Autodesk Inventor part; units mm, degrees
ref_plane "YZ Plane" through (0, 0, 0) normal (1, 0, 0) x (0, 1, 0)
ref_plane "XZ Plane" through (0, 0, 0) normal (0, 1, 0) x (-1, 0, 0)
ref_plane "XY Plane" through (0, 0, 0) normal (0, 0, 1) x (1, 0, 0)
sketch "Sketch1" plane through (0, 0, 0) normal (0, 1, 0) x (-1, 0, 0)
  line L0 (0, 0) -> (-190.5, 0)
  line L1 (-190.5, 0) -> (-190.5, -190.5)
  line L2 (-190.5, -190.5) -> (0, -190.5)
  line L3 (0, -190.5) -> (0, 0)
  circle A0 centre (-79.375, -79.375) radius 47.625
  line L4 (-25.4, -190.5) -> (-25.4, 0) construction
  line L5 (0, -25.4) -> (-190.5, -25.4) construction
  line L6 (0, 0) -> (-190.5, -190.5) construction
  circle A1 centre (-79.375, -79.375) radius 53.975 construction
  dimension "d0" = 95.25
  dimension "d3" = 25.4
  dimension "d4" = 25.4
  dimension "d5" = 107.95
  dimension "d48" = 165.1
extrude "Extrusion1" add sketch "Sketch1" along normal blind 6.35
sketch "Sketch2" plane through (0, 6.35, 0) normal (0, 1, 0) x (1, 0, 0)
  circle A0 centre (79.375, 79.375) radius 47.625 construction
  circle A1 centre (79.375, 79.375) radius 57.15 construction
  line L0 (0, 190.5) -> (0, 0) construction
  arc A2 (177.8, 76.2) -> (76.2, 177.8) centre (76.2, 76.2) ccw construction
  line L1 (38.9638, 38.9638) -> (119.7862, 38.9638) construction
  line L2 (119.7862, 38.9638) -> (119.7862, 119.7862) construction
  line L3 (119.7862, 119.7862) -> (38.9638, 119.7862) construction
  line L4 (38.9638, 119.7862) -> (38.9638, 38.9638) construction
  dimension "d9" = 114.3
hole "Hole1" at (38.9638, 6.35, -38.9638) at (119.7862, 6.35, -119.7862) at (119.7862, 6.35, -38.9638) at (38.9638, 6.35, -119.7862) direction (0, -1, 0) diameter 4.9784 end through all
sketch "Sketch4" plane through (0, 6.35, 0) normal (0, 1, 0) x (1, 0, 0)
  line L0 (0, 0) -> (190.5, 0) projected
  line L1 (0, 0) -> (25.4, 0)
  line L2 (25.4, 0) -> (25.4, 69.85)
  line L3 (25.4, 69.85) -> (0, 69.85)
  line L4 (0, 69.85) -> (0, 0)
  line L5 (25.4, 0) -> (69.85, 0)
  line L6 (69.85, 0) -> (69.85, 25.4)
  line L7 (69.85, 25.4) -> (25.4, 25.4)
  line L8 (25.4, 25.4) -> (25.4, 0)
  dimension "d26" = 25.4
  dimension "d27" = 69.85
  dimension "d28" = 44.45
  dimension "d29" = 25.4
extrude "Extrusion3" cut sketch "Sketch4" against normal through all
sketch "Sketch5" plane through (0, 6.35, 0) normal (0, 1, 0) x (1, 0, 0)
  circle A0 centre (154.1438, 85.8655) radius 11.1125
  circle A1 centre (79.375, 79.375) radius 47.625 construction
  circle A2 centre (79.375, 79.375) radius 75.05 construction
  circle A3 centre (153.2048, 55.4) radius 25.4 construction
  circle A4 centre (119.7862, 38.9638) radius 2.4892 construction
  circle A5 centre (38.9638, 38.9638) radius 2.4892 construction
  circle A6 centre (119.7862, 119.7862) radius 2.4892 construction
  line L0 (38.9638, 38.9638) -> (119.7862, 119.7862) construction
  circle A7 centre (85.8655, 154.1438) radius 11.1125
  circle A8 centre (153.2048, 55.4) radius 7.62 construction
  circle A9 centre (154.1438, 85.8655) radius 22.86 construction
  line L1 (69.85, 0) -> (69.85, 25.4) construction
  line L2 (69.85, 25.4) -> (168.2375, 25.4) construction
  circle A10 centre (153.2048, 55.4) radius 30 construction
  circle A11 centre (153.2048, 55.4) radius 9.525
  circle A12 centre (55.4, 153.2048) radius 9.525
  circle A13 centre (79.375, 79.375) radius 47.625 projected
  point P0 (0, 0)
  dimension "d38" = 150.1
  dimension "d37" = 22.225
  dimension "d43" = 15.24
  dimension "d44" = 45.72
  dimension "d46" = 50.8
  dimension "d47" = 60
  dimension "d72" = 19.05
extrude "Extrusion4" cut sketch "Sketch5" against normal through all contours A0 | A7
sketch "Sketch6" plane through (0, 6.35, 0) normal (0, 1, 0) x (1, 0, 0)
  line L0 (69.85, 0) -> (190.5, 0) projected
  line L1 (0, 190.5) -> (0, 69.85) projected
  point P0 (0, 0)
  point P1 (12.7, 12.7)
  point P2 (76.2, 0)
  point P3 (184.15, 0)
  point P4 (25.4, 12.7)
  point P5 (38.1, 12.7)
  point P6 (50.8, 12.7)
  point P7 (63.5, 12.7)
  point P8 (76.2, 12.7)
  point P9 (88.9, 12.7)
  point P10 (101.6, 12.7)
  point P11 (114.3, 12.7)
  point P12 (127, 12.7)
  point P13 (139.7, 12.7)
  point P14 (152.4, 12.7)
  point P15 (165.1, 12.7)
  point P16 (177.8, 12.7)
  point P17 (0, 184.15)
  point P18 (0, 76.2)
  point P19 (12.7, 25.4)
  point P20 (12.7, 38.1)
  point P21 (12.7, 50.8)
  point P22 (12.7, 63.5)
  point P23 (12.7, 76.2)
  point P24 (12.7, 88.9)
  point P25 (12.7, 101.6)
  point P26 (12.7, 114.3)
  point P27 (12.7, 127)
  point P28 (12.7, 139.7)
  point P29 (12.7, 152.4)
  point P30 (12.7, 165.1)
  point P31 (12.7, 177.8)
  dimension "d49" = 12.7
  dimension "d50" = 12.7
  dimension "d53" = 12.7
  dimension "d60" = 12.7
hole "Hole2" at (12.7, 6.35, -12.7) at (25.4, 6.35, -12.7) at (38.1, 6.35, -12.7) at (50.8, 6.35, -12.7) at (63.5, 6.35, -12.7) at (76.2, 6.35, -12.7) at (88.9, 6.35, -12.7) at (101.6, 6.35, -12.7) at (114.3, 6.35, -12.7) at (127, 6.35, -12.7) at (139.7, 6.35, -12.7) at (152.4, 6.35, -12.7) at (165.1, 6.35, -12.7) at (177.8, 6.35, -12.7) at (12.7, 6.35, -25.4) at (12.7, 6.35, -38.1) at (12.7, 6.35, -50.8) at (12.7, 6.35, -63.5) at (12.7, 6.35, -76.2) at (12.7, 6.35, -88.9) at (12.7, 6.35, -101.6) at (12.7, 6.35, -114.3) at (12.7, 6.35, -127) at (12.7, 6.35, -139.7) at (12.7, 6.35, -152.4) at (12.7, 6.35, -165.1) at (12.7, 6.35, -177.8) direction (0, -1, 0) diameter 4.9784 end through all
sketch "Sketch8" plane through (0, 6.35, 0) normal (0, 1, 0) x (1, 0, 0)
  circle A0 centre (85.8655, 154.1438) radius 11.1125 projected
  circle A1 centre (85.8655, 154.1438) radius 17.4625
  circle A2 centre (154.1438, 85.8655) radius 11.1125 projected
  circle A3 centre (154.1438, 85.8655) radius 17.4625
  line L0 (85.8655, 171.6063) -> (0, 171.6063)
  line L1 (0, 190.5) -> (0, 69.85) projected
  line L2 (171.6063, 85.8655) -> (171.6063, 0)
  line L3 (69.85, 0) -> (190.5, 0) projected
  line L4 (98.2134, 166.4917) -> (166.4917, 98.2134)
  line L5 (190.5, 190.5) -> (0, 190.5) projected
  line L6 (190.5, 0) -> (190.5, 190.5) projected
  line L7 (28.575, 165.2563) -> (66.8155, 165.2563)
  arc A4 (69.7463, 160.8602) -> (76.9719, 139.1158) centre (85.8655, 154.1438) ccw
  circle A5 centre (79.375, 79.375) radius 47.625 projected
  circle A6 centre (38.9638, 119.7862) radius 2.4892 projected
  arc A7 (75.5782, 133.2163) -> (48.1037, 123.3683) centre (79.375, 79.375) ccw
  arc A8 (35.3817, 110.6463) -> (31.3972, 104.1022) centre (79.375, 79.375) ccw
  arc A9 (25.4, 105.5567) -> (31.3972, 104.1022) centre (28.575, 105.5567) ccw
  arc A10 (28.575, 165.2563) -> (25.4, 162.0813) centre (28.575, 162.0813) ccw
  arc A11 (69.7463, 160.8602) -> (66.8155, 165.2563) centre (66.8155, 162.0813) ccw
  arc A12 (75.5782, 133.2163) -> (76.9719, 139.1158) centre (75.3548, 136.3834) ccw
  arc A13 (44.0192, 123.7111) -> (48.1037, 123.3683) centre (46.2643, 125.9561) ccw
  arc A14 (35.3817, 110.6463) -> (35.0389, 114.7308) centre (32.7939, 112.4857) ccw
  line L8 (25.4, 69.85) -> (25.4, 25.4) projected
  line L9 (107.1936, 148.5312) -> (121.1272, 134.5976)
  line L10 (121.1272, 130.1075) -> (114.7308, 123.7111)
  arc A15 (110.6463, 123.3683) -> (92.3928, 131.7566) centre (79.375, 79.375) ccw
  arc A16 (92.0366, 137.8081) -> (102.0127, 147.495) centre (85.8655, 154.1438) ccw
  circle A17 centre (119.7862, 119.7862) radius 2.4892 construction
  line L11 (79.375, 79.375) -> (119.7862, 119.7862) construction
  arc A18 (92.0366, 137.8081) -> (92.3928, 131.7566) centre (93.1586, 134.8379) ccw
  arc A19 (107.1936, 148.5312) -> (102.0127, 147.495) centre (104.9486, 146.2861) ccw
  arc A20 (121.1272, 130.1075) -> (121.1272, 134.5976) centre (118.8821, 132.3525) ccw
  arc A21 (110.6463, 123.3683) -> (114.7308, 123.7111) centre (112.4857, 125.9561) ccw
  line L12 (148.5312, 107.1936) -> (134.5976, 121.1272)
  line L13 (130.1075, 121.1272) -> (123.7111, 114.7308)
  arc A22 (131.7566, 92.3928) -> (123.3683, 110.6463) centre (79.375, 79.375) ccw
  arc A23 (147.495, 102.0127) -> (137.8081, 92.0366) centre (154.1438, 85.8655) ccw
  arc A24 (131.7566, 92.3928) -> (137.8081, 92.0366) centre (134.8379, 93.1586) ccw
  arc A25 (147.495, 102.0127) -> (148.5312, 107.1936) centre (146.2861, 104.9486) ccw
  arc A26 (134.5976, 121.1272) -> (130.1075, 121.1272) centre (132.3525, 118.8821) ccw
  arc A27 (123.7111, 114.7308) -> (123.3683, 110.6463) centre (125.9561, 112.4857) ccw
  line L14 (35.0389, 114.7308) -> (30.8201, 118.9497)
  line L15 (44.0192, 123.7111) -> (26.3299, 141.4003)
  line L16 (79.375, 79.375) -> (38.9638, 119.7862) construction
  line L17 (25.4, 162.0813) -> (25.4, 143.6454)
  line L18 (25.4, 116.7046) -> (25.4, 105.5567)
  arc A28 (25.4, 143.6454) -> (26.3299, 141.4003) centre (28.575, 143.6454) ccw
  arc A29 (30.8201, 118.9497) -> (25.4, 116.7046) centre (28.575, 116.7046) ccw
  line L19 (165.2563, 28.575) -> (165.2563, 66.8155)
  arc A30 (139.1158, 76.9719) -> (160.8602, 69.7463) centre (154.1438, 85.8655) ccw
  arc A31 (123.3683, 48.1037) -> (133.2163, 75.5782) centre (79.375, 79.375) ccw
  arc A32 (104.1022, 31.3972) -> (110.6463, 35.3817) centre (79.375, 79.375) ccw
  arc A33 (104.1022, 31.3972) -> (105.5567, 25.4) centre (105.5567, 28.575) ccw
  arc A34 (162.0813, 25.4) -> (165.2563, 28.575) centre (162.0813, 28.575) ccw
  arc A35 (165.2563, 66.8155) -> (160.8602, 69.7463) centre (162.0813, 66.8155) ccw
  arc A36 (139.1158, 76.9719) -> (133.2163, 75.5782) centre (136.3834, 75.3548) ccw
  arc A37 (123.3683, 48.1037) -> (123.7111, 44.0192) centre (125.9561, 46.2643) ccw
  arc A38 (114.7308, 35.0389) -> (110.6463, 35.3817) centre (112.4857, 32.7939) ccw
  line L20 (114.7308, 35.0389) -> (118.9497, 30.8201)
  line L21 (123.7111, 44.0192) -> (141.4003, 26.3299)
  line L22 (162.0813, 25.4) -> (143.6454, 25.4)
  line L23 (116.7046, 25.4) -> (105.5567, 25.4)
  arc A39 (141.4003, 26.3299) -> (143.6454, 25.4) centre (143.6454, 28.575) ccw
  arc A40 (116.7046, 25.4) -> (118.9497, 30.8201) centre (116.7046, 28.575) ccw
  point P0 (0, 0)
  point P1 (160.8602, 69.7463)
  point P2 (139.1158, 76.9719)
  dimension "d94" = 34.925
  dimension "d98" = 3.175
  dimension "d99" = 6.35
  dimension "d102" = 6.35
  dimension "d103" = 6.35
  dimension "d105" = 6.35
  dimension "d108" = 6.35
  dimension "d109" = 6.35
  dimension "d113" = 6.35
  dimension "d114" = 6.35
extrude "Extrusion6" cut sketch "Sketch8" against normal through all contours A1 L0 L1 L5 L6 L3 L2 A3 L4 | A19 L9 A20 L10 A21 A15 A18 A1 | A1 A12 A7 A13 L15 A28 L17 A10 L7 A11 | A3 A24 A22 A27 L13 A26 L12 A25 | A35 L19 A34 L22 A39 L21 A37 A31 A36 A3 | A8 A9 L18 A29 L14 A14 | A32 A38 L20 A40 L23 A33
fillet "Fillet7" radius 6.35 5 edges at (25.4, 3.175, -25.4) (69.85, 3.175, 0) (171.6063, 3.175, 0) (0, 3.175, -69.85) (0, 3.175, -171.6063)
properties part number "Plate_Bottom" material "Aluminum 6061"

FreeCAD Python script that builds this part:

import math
import FreeCAD as App
import Part
import Sketcher
from FreeCAD import Vector
Q = App.Units.Quantity


def edges_at(feature, points):
    """Names of the edges that pass closest to the given points."""
    edges = feature.Shape.Edges
    near = lambda p: min(range(len(edges)), key=lambda i: edges[i].distToShape(Part.Vertex(*p))[0])
    return sorted({f"Edge{near(p) + 1}" for p in points})

doc = App.newDocument("Part")
params = doc.addObject("Spreadsheet::Sheet", "Params")
for row, (alias, value) in enumerate([
    ("sketch1_diameter", "3.75 in"),
    ("sketch1_width", "7.5 in"),
    ("pad1_length", "0.25 in"),
    ("sketch2_diameter", "0.196 in"),
    ("hole_diameter", "0.196 in"),
    ("sketch3_width", "1 in"),
    ("sketch3_width2", "2.75 in"),
    ("sketch4_diameter", "0.875 in"),
    ("sketch5_diameter", "0.196 in"),
    ("hole2_diameter", "0.196 in"),
    ("sketch6_radius", "0.6875 in"),
    ("sketch6_radius2", "0.125 in"),
    ("sketch6_width", "7.5 in"),
    ("sketch6_radius3", "2.125 in"),
    ("fillet_radius", "0.25 in"),
], start=1):
    params.set(f"A{row}", alias)
    params.set(f"B{row}", "=" + value)
    params.setAlias(f"B{row}", alias)

body = doc.addObject("PartDesign::Body", "Body")

# Sketch on XZ plane
sketch1 = body.newObject("Sketcher::SketchObject", "Sketch")
sketch1.AttachmentSupport = (doc.getObject("XZ_Plane"), [""])
sketch1.MapMode = "FlatFace"
sketch1.addGeometry(Part.LineSegment(Vector(0, -190, 0), Vector(0, 0, 0)), False)
sketch1.addGeometry(Part.LineSegment(Vector(0, 0, 0), Vector(190, 0, 0)), False)
sketch1.addGeometry(Part.LineSegment(Vector(190, 0, 0), Vector(190, -190, 0)), False)
sketch1.addGeometry(Part.LineSegment(Vector(190, -190, 0), Vector(0, -190, 0)), False)
sketch1.addGeometry(Part.Circle(Vector(79, -79, 0), Vector(0, 0, 1), 48), False)
sketch1.addConstraint(Sketcher.Constraint("Coincident", 0, 2, 1, 1))
sketch1.addConstraint(Sketcher.Constraint("Coincident", 1, 2, 2, 1))
sketch1.addConstraint(Sketcher.Constraint("Coincident", 2, 2, 3, 1))
sketch1.addConstraint(Sketcher.Constraint("Coincident", 3, 2, 0, 1))
sketch1.addConstraint(Sketcher.Constraint("Vertical", 0))
sketch1.addConstraint(Sketcher.Constraint("Horizontal", 1))
sketch1.addConstraint(Sketcher.Constraint("Vertical", 2))
sketch1.addConstraint(Sketcher.Constraint("Horizontal", 3))
sketch1.addConstraint(Sketcher.Constraint("Coincident", 0, 2, -1, 1))
sketch1.addConstraint(Sketcher.Constraint("Equal", 3, 0))
sketch1.addConstraint(Sketcher.Constraint("Diameter", 4, Q("3.75 in")))
sketch1.addConstraint(Sketcher.Constraint("DistanceX", 1, 1, 1, 2, Q("7.5 in")))
sketch1.addConstraint(Sketcher.Constraint("DistanceX", -1, 1, 4, 3, Q("3.125 in")))
sketch1.addConstraint(Sketcher.Constraint("DistanceY", 4, 3, -1, 1, Q("3.125 in")))
sketch1.setExpression("Constraints[10]", "Params.sketch1_diameter")
sketch1.setExpression("Constraints[11]", "Params.sketch1_width")
pad1 = body.newObject("PartDesign::Pad", "Pad")
pad1.Profile = sketch1
pad1.setExpression("Length", "Params.pad1_length")
pad1.Reversed = True

# Sketch on XZ plane
sketch2 = body.newObject("Sketcher::SketchObject", "Sketch001")
sketch2.AttachmentSupport = (doc.getObject("XZ_Plane"), [""])
sketch2.MapMode = "FlatFace"
sketch2.AttachmentOffset = App.Placement(Vector(0, 0, -0.25 * 25.4), App.Rotation())
sketch2.addGeometry(Part.Circle(Vector(39, -39, 0), Vector(0, 0, 1), 2.5), False)
sketch2.addGeometry(Part.Circle(Vector(119.8, -119.8, 0), Vector(0, 0, 1), 2.5), False)
sketch2.addGeometry(Part.Circle(Vector(119.8, -39, 0), Vector(0, 0, 1), 2.5), False)
sketch2.addGeometry(Part.Circle(Vector(39, -119.8, 0), Vector(0, 0, 1), 2.5), False)
sketch2.addConstraint(Sketcher.Constraint("Equal", 0, 1))
sketch2.addConstraint(Sketcher.Constraint("Equal", 1, 2))
sketch2.addConstraint(Sketcher.Constraint("Equal", 2, 3))
sketch2.addConstraint(Sketcher.Constraint("Horizontal", 0, 3, 2, 3))
sketch2.addConstraint(Sketcher.Constraint("Horizontal", 1, 3, 3, 3))
sketch2.addConstraint(Sketcher.Constraint("Vertical", 1, 3, 2, 3))
sketch2.addConstraint(Sketcher.Constraint("Vertical", 0, 3, 3, 3))
sketch2.addConstraint(Sketcher.Constraint("Diameter", 0, Q("0.196 in")))
sketch2.addConstraint(Sketcher.Constraint("DistanceX", -1, 1, 0, 3, Q("1.534 in")))
sketch2.addConstraint(Sketcher.Constraint("DistanceY", 0, 3, -1, 1, Q("1.534 in")))
sketch2.addConstraint(Sketcher.Constraint("DistanceX", -1, 1, 1, 3, Q("4.716 in")))
sketch2.addConstraint(Sketcher.Constraint("DistanceY", 1, 3, -1, 1, Q("4.716 in")))
sketch2.setExpression("Constraints[7]", "Params.sketch2_diameter")
doc.recompute()
hole = body.newObject("PartDesign::Hole", "Hole")
hole.Profile = sketch2
hole.ThreadType = "None"
hole.setExpression("Diameter", "Params.hole_diameter")
hole.DepthType = "ThroughAll"
hole.Reversed = True

# Sketch on XZ plane
sketch3 = body.newObject("Sketcher::SketchObject", "Sketch002")
sketch3.AttachmentSupport = (doc.getObject("XZ_Plane"), [""])
sketch3.MapMode = "FlatFace"
sketch3.AttachmentOffset = App.Placement(Vector(0, 0, -0.25 * 25.4), App.Rotation())
sketch3.addGeometry(Part.LineSegment(Vector(0, -70, 0), Vector(0, 0, 0)), False)
sketch3.addGeometry(Part.LineSegment(Vector(0, 0, 0), Vector(70, 0, 0)), False)
sketch3.addGeometry(Part.LineSegment(Vector(70, 0, 0), Vector(70, -25, 0)), False)
sketch3.addGeometry(Part.LineSegment(Vector(70, -25, 0), Vector(25, -25, 0)), False)
sketch3.addGeometry(Part.LineSegment(Vector(25, -25, 0), Vector(25, -70, 0)), False)
sketch3.addGeometry(Part.LineSegment(Vector(25, -70, 0), Vector(0, -70, 0)), False)
sketch3.addConstraint(Sketcher.Constraint("Coincident", 0, 2, 1, 1))
sketch3.addConstraint(Sketcher.Constraint("Coincident", 1, 2, 2, 1))
sketch3.addConstraint(Sketcher.Constraint("Coincident", 2, 2, 3, 1))
sketch3.addConstraint(Sketcher.Constraint("Coincident", 3, 2, 4, 1))
sketch3.addConstraint(Sketcher.Constraint("Coincident", 4, 2, 5, 1))
sketch3.addConstraint(Sketcher.Constraint("Coincident", 5, 2, 0, 1))
sketch3.addConstraint(Sketcher.Constraint("Vertical", 0))
sketch3.addConstraint(Sketcher.Constraint("Horizontal", 1))
sketch3.addConstraint(Sketcher.Constraint("Vertical", 2))
sketch3.addConstraint(Sketcher.Constraint("Horizontal", 3))
sketch3.addConstraint(Sketcher.Constraint("Vertical", 4))
sketch3.addConstraint(Sketcher.Constraint("Horizontal", 5))
sketch3.addConstraint(Sketcher.Constraint("Coincident", 0, 2, -1, 1))
sketch3.addConstraint(Sketcher.Constraint("Equal", 1, 0))
sketch3.addConstraint(Sketcher.Constraint("Equal", 5, 2))
sketch3.addConstraint(Sketcher.Constraint("DistanceX", 5, 2, 5, 1, Q("1 in")))
sketch3.addConstraint(Sketcher.Constraint("DistanceX", 1, 1, 1, 2, Q("2.75 in")))
sketch3.setExpression("Constraints[15]", "Params.sketch3_width")
sketch3.setExpression("Constraints[16]", "Params.sketch3_width2")
pocket1 = body.newObject("PartDesign::Pocket", "Pocket")
pocket1.Profile = sketch3
pocket1.Type = "ThroughAll"
pocket1.Reversed = True

# Sketch on XZ plane
sketch4 = body.newObject("Sketcher::SketchObject", "Sketch003")
sketch4.AttachmentSupport = (doc.getObject("XZ_Plane"), [""])
sketch4.MapMode = "FlatFace"
sketch4.AttachmentOffset = App.Placement(Vector(0, 0, -0.25 * 25.4), App.Rotation())
sketch4.addGeometry(Part.Circle(Vector(154, -86, 0), Vector(0, 0, 1), 11), False)
sketch4.addGeometry(Part.Circle(Vector(86, -154, 0), Vector(0, 0, 1), 11), False)
sketch4.addConstraint(Sketcher.Constraint("Equal", 0, 1))
sketch4.addConstraint(Sketcher.Constraint("Diameter", 0, Q("0.875 in")))
sketch4.addConstraint(Sketcher.Constraint("DistanceX", -1, 1, 0, 3, 154.1438))
sketch4.addConstraint(Sketcher.Constraint("DistanceY", 0, 3, -1, 1, 85.8655))
sketch4.addConstraint(Sketcher.Constraint("DistanceX", -1, 1, 1, 3, 85.8655))
sketch4.addConstraint(Sketcher.Constraint("DistanceY", 1, 3, -1, 1, 154.1438))
sketch4.setExpression("Constraints[1]", "Params.sketch4_diameter")
pocket2 = body.newObject("PartDesign::Pocket", "Pocket001")
pocket2.Profile = sketch4
pocket2.Type = "ThroughAll"
pocket2.Reversed = True

# Sketch on XZ plane
sketch5 = body.newObject("Sketcher::SketchObject", "Sketch004")
sketch5.AttachmentSupport = (doc.getObject("XZ_Plane"), [""])
sketch5.MapMode = "FlatFace"
sketch5.AttachmentOffset = App.Placement(Vector(0, 0, -0.25 * 25.4), App.Rotation())
sketch5.addGeometry(Part.Circle(Vector(12.7, -12.7, 0), Vector(0, 0, 1), 2.5), False)
sketch5.addGeometry(Part.Circle(Vector(25.4, -12.7, 0), Vector(0, 0, 1), 2.5), False)
sketch5.addGeometry(Part.Circle(Vector(38.1, -12.7, 0), Vector(0, 0, 1), 2.5), False)
sketch5.addGeometry(Part.Circle(Vector(50.8, -12.7, 0), Vector(0, 0, 1), 2.5), False)
sketch5.addGeometry(Part.Circle(Vector(63.5, -12.7, 0), Vector(0, 0, 1), 2.5), False)
sketch5.addGeometry(Part.Circle(Vector(76.2, -12.7, 0), Vector(0, 0, 1), 2.5), False)
sketch5.addGeometry(Part.Circle(Vector(88.9, -12.7, 0), Vector(0, 0, 1), 2.5), False)
sketch5.addGeometry(Part.Circle(Vector(101.6, -12.7, 0), Vector(0, 0, 1), 2.5), False)
sketch5.addGeometry(Part.Circle(Vector(114.3, -12.7, 0), Vector(0, 0, 1), 2.5), False)
sketch5.addGeometry(Part.Circle(Vector(127, -12.7, 0), Vector(0, 0, 1), 2.5), False)
sketch5.addGeometry(Part.Circle(Vector(139.7, -12.7, 0), Vector(0, 0, 1), 2.5), False)
sketch5.addGeometry(Part.Circle(Vector(152.4, -12.7, 0), Vector(0, 0, 1), 2.5), False)
sketch5.addGeometry(Part.Circle(Vector(165.1, -12.7, 0), Vector(0, 0, 1), 2.5), False)
sketch5.addGeometry(Part.Circle(Vector(177.8, -12.7, 0), Vector(0, 0, 1), 2.5), False)
sketch5.addGeometry(Part.Circle(Vector(12.7, -25.4, 0), Vector(0, 0, 1), 2.5), False)
sketch5.addGeometry(Part.Circle(Vector(12.7, -38.1, 0), Vector(0, 0, 1), 2.5), False)
sketch5.addGeometry(Part.Circle(Vector(12.7, -50.8, 0), Vector(0, 0, 1), 2.5), False)
sketch5.addGeometry(Part.Circle(Vector(12.7, -63.5, 0), Vector(0, 0, 1), 2.5), False)
sketch5.addGeometry(Part.Circle(Vector(12.7, -76.2, 0), Vector(0, 0, 1), 2.5), False)
sketch5.addGeometry(Part.Circle(Vector(12.7, -88.9, 0), Vector(0, 0, 1), 2.5), False)
sketch5.addGeometry(Part.Circle(Vector(12.7, -101.6, 0), Vector(0, 0, 1), 2.5), False)
sketch5.addGeometry(Part.Circle(Vector(12.7, -114.3, 0), Vector(0, 0, 1), 2.5), False)
sketch5.addGeometry(Part.Circle(Vector(12.7, -127, 0), Vector(0, 0, 1), 2.5), False)
sketch5.addGeometry(Part.Circle(Vector(12.7, -139.7, 0), Vector(0, 0, 1), 2.5), False)
sketch5.addGeometry(Part.Circle(Vector(12.7, -152.4, 0), Vector(0, 0, 1), 2.5), False)
sketch5.addGeometry(Part.Circle(Vector(12.7, -165.1, 0), Vector(0, 0, 1), 2.5), False)
sketch5.addGeometry(Part.Circle(Vector(12.7, -177.8, 0), Vector(0, 0, 1), 2.5), False)
sketch5.addConstraint(Sketcher.Constraint("Equal", 0, 1))
sketch5.addConstraint(Sketcher.Constraint("Equal", 1, 2))
sketch5.addConstraint(Sketcher.Constraint("Equal", 2, 3))
sketch5.addConstraint(Sketcher.Constraint("Equal", 3, 4))
sketch5.addConstraint(Sketcher.Constraint("Equal", 4, 5))
sketch5.addConstraint(Sketcher.Constraint("Equal", 5, 6))
sketch5.addConstraint(Sketcher.Constraint("Equal", 6, 7))
sketch5.addConstraint(Sketcher.Constraint("Equal", 7, 8))
sketch5.addConstraint(Sketcher.Constraint("Equal", 8, 9))
sketch5.addConstraint(Sketcher.Constraint("Equal", 9, 10))
sketch5.addConstraint(Sketcher.Constraint("Equal", 10, 11))
sketch5.addConstraint(Sketcher.Constraint("Equal", 11, 12))
sketch5.addConstraint(Sketcher.Constraint("Equal", 12, 13))
sketch5.addConstraint(Sketcher.Constraint("Equal", 13, 14))
sketch5.addConstraint(Sketcher.Constraint("Equal", 14, 15))
sketch5.addConstraint(Sketcher.Constraint("Equal", 15, 16))
sketch5.addConstraint(Sketcher.Constraint("Equal", 16, 17))
sketch5.addConstraint(Sketcher.Constraint("Equal", 17, 18))
sketch5.addConstraint(Sketcher.Constraint("Equal", 18, 19))
sketch5.addConstraint(Sketcher.Constraint("Equal", 19, 20))
sketch5.addConstraint(Sketcher.Constraint("Equal", 20, 21))
sketch5.addConstraint(Sketcher.Constraint("Equal", 21, 22))
sketch5.addConstraint(Sketcher.Constraint("Equal", 22, 23))
sketch5.addConstraint(Sketcher.Constraint("Equal", 23, 24))
sketch5.addConstraint(Sketcher.Constraint("Equal", 24, 25))
sketch5.addConstraint(Sketcher.Constraint("Equal", 25, 26))
sketch5.addConstraint(Sketcher.Constraint("Horizontal", 0, 3, 1, 3))
sketch5.addConstraint(Sketcher.Constraint("Horizontal", 1, 3, 2, 3))
sketch5.addConstraint(Sketcher.Constraint("Horizontal", 2, 3, 3, 3))
sketch5.addConstraint(Sketcher.Constraint("Horizontal", 3, 3, 4, 3))
sketch5.addConstraint(Sketcher.Constraint("Horizontal", 4, 3, 5, 3))
sketch5.addConstraint(Sketcher.Constraint("Horizontal", 5, 3, 6, 3))
sketch5.addConstraint(Sketcher.Constraint("Horizontal", 6, 3, 7, 3))
sketch5.addConstraint(Sketcher.Constraint("Horizontal", 7, 3, 8, 3))
sketch5.addConstraint(Sketcher.Constraint("Horizontal", 8, 3, 9, 3))
sketch5.addConstraint(Sketcher.Constraint("Horizontal", 9, 3, 10, 3))
sketch5.addConstraint(Sketcher.Constraint("Horizontal", 10, 3, 11, 3))
sketch5.addConstraint(Sketcher.Constraint("Horizontal", 11, 3, 12, 3))
sketch5.addConstraint(Sketcher.Constraint("Horizontal", 12, 3, 13, 3))
sketch5.addConstraint(Sketcher.Constraint("Vertical", 0, 3, 14, 3))
sketch5.addConstraint(Sketcher.Constraint("Vertical", 14, 3, 15, 3))
sketch5.addConstraint(Sketcher.Constraint("Vertical", 15, 3, 16, 3))
sketch5.addConstraint(Sketcher.Constraint("Vertical", 16, 3, 17, 3))
sketch5.addConstraint(Sketcher.Constraint("Vertical", 17, 3, 18, 3))
sketch5.addConstraint(Sketcher.Constraint("Vertical", 18, 3, 19, 3))
sketch5.addConstraint(Sketcher.Constraint("Vertical", 19, 3, 20, 3))
sketch5.addConstraint(Sketcher.Constraint("Vertical", 20, 3, 21, 3))
sketch5.addConstraint(Sketcher.Constraint("Vertical", 21, 3, 22, 3))
sketch5.addConstraint(Sketcher.Constraint("Vertical", 22, 3, 23, 3))
sketch5.addConstraint(Sketcher.Constraint("Vertical", 23, 3, 24, 3))
sketch5.addConstraint(Sketcher.Constraint("Vertical", 24, 3, 25, 3))
sketch5.addConstraint(Sketcher.Constraint("Vertical", 25, 3, 26, 3))
sketch5.addConstraint(Sketcher.Constraint("Diameter", 0, Q("0.196 in")))
sketch5.addConstraint(Sketcher.Constraint("DistanceX", -1, 1, 1, 3, Q("1 in")))
sketch5.addConstraint(Sketcher.Constraint("DistanceX", -1, 1, 3, 3, Q("2 in")))
sketch5.addConstraint(Sketcher.Constraint("DistanceX", -1, 1, 5, 3, Q("3 in")))
sketch5.addConstraint(Sketcher.Constraint("DistanceX", -1, 1, 7, 3, Q("4 in")))
sketch5.addConstraint(Sketcher.Constraint("DistanceX", -1, 1, 9, 3, Q("5 in")))
sketch5.addConstraint(Sketcher.Constraint("DistanceX", -1, 1, 11, 3, Q("6 in")))
sketch5.addConstraint(Sketcher.Constraint("DistanceX", -1, 1, 13, 3, Q("7 in")))
sketch5.addConstraint(Sketcher.Constraint("DistanceY", 14, 3, -1, 1, Q("1 in")))
sketch5.addConstraint(Sketcher.Constraint("DistanceY", 16, 3, -1, 1, Q("2 in")))
sketch5.addConstraint(Sketcher.Constraint("DistanceY", 18, 3, -1, 1, Q("3 in")))
sketch5.addConstraint(Sketcher.Constraint("DistanceY", 20, 3, -1, 1, Q("4 in")))
sketch5.addConstraint(Sketcher.Constraint("DistanceY", 22, 3, -1, 1, Q("5 in")))
sketch5.addConstraint(Sketcher.Constraint("DistanceY", 24, 3, -1, 1, Q("6 in")))
sketch5.addConstraint(Sketcher.Constraint("DistanceY", 26, 3, -1, 1, Q("7 in")))
sketch5.addConstraint(Sketcher.Constraint("DistanceX", 0, 3, 2, 3, Q("1 in")))
sketch5.addConstraint(Sketcher.Constraint("DistanceX", 2, 3, 4, 3, Q("1 in")))
sketch5.addConstraint(Sketcher.Constraint("DistanceX", 4, 3, 6, 3, Q("1 in")))
sketch5.addConstraint(Sketcher.Constraint("DistanceX", 6, 3, 8, 3, Q("1 in")))
sketch5.addConstraint(Sketcher.Constraint("DistanceX", 8, 3, 10, 3, Q("1 in")))
sketch5.addConstraint(Sketcher.Constraint("DistanceX", 10, 3, 12, 3, Q("1 in")))
sketch5.addConstraint(Sketcher.Constraint("DistanceY", 15, 3, 0, 3, Q("1 in")))
sketch5.addConstraint(Sketcher.Constraint("DistanceY", 17, 3, 15, 3, Q("1 in")))
sketch5.addConstraint(Sketcher.Constraint("DistanceY", 19, 3, 17, 3, Q("1 in")))
sketch5.addConstraint(Sketcher.Constraint("DistanceY", 21, 3, 19, 3, Q("1 in")))
sketch5.addConstraint(Sketcher.Constraint("DistanceY", 23, 3, 21, 3, Q("1 in")))
sketch5.addConstraint(Sketcher.Constraint("DistanceY", 25, 3, 23, 3, Q("1 in")))
sketch5.addConstraint(Sketcher.Constraint("DistanceX", -1, 1, 0, 3, Q("0.5 in")))
sketch5.addConstraint(Sketcher.Constraint("DistanceY", 0, 3, -1, 1, Q("0.5 in")))
sketch5.setExpression("Constraints[52]", "Params.sketch5_diameter")
doc.recompute()
hole2 = body.newObject("PartDesign::Hole", "Hole001")
hole2.Profile = sketch5
hole2.ThreadType = "None"
hole2.setExpression("Diameter", "Params.hole2_diameter")
hole2.DepthType = "ThroughAll"
hole2.Reversed = True

# Sketch on XZ plane
sketch6 = body.newObject("Sketcher::SketchObject", "Sketch005")
sketch6.AttachmentSupport = (doc.getObject("XZ_Plane"), [""])
sketch6.MapMode = "FlatFace"
sketch6.AttachmentOffset = App.Placement(Vector(0, 0, -0.25 * 25.4), App.Rotation())
sketch6.addGeometry(Part.ArcOfCircle(Part.Circle(Vector(85.9, -154.1, 0), Vector(0, 0, 1), 17.5), math.radians(-90), math.radians(-45)), False)
sketch6.addGeometry(Part.LineSegment(Vector(98.2, -166.5, 0), Vector(166.5, -98.2, 0)), False)
sketch6.addGeometry(Part.ArcOfCircle(Part.Circle(Vector(154.1, -85.9, 0), Vector(0, 0, 1), 17.5), math.radians(-45), math.radians(0)), False)
sketch6.addGeometry(Part.LineSegment(Vector(171.6, -85.9, 0), Vector(171.6, 0, 0)), False)
sketch6.addGeometry(Part.LineSegment(Vector(171.6, 0, 0), Vector(190.5, 0, 0)), False)
sketch6.addGeometry(Part.LineSegment(Vector(190.5, 0, 0), Vector(190.5, -190.5, 0)), False)
sketch6.addGeometry(Part.LineSegment(Vector(190.5, -190.5, 0), Vector(0, -190.5, 0)), False)
sketch6.addGeometry(Part.LineSegment(Vector(0, -190.5, 0), Vector(0, -171.6, 0)), False)
sketch6.addGeometry(Part.LineSegment(Vector(0, -171.6, 0), Vector(85.9, -171.6, 0)), False)
sketch6.addGeometry(Part.ArcOfCircle(Part.Circle(Vector(104.9, -146.3, 0), Vector(0, 0, 1), 3.2), math.radians(-158), math.radians(-45)), False)
sketch6.addGeometry(Part.ArcOfCircle(Part.Circle(Vector(85.9, -154.1, 0), Vector(0, 0, 1), 17.5), math.radians(22), math.radians(69)), False)
sketch6.addGeometry(Part.ArcOfCircle(Part.Circle(Vector(93.2, -134.8, 0), Vector(0, 0, 1), 3.2), math.radians(104), math.radians(249)), False)
sketch6.addGeometry(Part.ArcOfCircle(Part.Circle(Vector(79.4, -79.4, 0), Vector(0, 0, 1), 54), math.radians(-76), math.radians(-55)), False)
sketch6.addGeometry(Part.ArcOfCircle(Part.Circle(Vector(112.5, -126, 0), Vector(0, 0, 1), 3.2), math.radians(45), math.radians(125)), False)
sketch6.addGeometry(Part.LineSegment(Vector(114.7, -123.7, 0), Vector(121.1, -130.1, 0)), False)
sketch6.addGeometry(Part.ArcOfCircle(Part.Circle(Vector(118.9, -132.4, 0), Vector(0, 0, 1), 3.2), math.radians(-45), math.radians(45)), False)
sketch6.addGeometry(Part.LineSegment(Vector(121.1, -134.6, 0), Vector(107.2, -148.5, 0)), False)
sketch6.addGeometry(Part.ArcOfCircle(Part.Circle(Vector(85.9, -154.1, 0), Vector(0, 0, 1), 17.5), math.radians(121), math.radians(203)), False)
sketch6.addGeometry(Part.ArcOfCircle(Part.Circle(Vector(66.8, -162.1, 0), Vector(0, 0, 1), 3.2), math.radians(-90), math.radians(23)), False)
sketch6.addGeometry(Part.LineSegment(Vector(66.8, -165.3, 0), Vector(28.6, -165.3, 0)), False)
sketch6.addGeometry(Part.ArcOfCircle(Part.Circle(Vector(28.6, -162.1, 0), Vector(0, 0, 1), 3.2), math.radians(180), math.radians(270)), False)
sketch6.addGeometry(Part.LineSegment(Vector(25.4, -162.1, 0), Vector(25.4, -143.6, 0)), False)
sketch6.addGeometry(Part.ArcOfCircle(Part.Circle(Vector(28.6, -143.6, 0), Vector(0, 0, 1), 3.2), math.radians(135), math.radians(180)), False)
sketch6.addGeometry(Part.LineSegment(Vector(26.3, -141.4, 0), Vector(44, -123.7, 0)), False)
sketch6.addGeometry(Part.ArcOfCircle(Part.Circle(Vector(46.3, -126, 0), Vector(0, 0, 1), 3.2), math.radians(55), math.radians(135)), False)
sketch6.addGeometry(Part.ArcOfCircle(Part.Circle(Vector(79.4, -79.4, 0), Vector(0, 0, 1), 54), math.radians(-125), math.radians(-94)), False)
sketch6.addGeometry(Part.ArcOfCircle(Part.Circle(Vector(75.4, -136.4, 0), Vector(0, 0, 1), 3.2), math.radians(-59), math.radians(86)), False)
sketch6.addGeometry(Part.ArcOfCircle(Part.Circle(Vector(154.1, -85.9, 0), Vector(0, 0, 1), 17.5), math.radians(-159), math.radians(-112)), False)
sketch6.addGeometry(Part.ArcOfCircle(Part.Circle(Vector(146.3, -104.9, 0), Vector(0, 0, 1), 3.2), math.radians(-45), math.radians(68)), False)
sketch6.addGeometry(Part.LineSegment(Vector(148.5, -107.2, 0), Vector(134.6, -121.1, 0)), False)
sketch6.addGeometry(Part.ArcOfCircle(Part.Circle(Vector(132.4, -118.9, 0), Vector(0, 0, 1), 3.2), math.radians(-135), math.radians(-45)), False)
sketch6.addGeometry(Part.LineSegment(Vector(130.1, -121.1, 0), Vector(123.7, -114.7, 0)), False)
sketch6.addGeometry(Part.ArcOfCircle(Part.Circle(Vector(126, -112.5, 0), Vector(0, 0, 1), 3.2), math.radians(145), math.radians(225)), False)
sketch6.addGeometry(Part.ArcOfCircle(Part.Circle(Vector(79.4, -79.4, 0), Vector(0, 0, 1), 54), math.radians(-35), math.radians(-14)), False)
sketch6.addGeometry(Part.ArcOfCircle(Part.Circle(Vector(134.8, -93.2, 0), Vector(0, 0, 1), 3.2), math.radians(21), math.radians(166)), False)
sketch6.addGeometry(Part.ArcOfCircle(Part.Circle(Vector(162.1, -66.8, 0), Vector(0, 0, 1), 3.2), math.radians(-113), math.radians(0)), False)
sketch6.addGeometry(Part.ArcOfCircle(Part.Circle(Vector(154.1, -85.9, 0), Vector(0, 0, 1), 17.5), math.radians(67), math.radians(149)), False)
sketch6.addGeometry(Part.ArcOfCircle(Part.Circle(Vector(136.4, -75.4, 0), Vector(0, 0, 1), 3.2), math.radians(-176), math.radians(-31)), False)
sketch6.addGeometry(Part.ArcOfCircle(Part.Circle(Vector(79.4, -79.4, 0), Vector(0, 0, 1), 54), math.radians(4), math.radians(35)), False)
sketch6.addGeometry(Part.ArcOfCircle(Part.Circle(Vector(126, -46.3, 0), Vector(0, 0, 1), 3.2), math.radians(135), math.radians(215)), False)
sketch6.addGeometry(Part.LineSegment(Vector(123.7, -44, 0), Vector(141.4, -26.3, 0)), False)
sketch6.addGeometry(Part.ArcOfCircle(Part.Circle(Vector(143.6, -28.6, 0), Vector(0, 0, 1), 3.2), math.radians(90), math.radians(135)), False)
sketch6.addGeometry(Part.LineSegment(Vector(143.6, -25.4, 0), Vector(162.1, -25.4, 0)), False)
sketch6.addGeometry(Part.ArcOfCircle(Part.Circle(Vector(162.1, -28.6, 0), Vector(0, 0, 1), 3.2), math.radians(0), math.radians(90)), False)
sketch6.addGeometry(Part.LineSegment(Vector(165.3, -28.6, 0), Vector(165.3, -66.8, 0)), False)
sketch6.addGeometry(Part.ArcOfCircle(Part.Circle(Vector(79.4, -79.4, 0), Vector(0, 0, 1), 54), math.radians(-152.73), math.radians(-144.59)), False)
sketch6.addGeometry(Part.ArcOfCircle(Part.Circle(Vector(32.8, -112.5, 0), Vector(0, 0, 1), 3.2), math.radians(-45), math.radians(35)), False)
sketch6.addGeometry(Part.LineSegment(Vector(35, -114.7, 0), Vector(30.8, -118.9, 0)), False)
sketch6.addGeometry(Part.ArcOfCircle(Part.Circle(Vector(28.6, -116.7, 0), Vector(0, 0, 1), 3.2), math.radians(180), math.radians(315)), False)
sketch6.addGeometry(Part.LineSegment(Vector(25.4, -116.7, 0), Vector(25.4, -105.6, 0)), False)
sketch6.addGeometry(Part.ArcOfCircle(Part.Circle(Vector(28.6, -105.6, 0), Vector(0, 0, 1), 3.2), math.radians(27), math.radians(180)), False)
sketch6.addGeometry(Part.ArcOfCircle(Part.Circle(Vector(79.4, -79.4, 0), Vector(0, 0, 1), 54), math.radians(54.59), math.radians(62.73)), False)
sketch6.addGeometry(Part.ArcOfCircle(Part.Circle(Vector(105.6, -28.6, 0), Vector(0, 0, 1), 3.2), math.radians(90), math.radians(243)), False)
sketch6.addGeometry(Part.LineSegment(Vector(105.6, -25.4, 0), Vector(116.7, -25.4, 0)), False)
sketch6.addGeometry(Part.ArcOfCircle(Part.Circle(Vector(116.7, -28.6, 0), Vector(0, 0, 1), 3.2), math.radians(-45), math.radians(90)), False)
sketch6.addGeometry(Part.LineSegment(Vector(118.9, -30.8, 0), Vector(114.7, -35, 0)), False)
sketch6.addGeometry(Part.ArcOfCircle(Part.Circle(Vector(112.5, -32.8, 0), Vector(0, 0, 1), 3.2), math.radians(-125), math.radians(-45)), False)
sketch6.addConstraint(Sketcher.Constraint("Tangent", 0, 2, 1, 1))
sketch6.addConstraint(Sketcher.Constraint("Tangent", 1, 2, 2, 1))
sketch6.addConstraint(Sketcher.Constraint("Tangent", 2, 2, 3, 1))
sketch6.addConstraint(Sketcher.Constraint("Coincident", 3, 2, 4, 1))
sketch6.addConstraint(Sketcher.Constraint("Coincident", 4, 2, 5, 1))
sketch6.addConstraint(Sketcher.Constraint("Coincident", 5, 2, 6, 1))
sketch6.addConstraint(Sketcher.Constraint("Coincident", 6, 2, 7, 1))
sketch6.addConstraint(Sketcher.Constraint("Coincident", 7, 2, 8, 1))
sketch6.addConstraint(Sketcher.Constraint("Tangent", 8, 2, 0, 1))
sketch6.addConstraint(Sketcher.Constraint("Tangent", 9, 1, 10, 1))
sketch6.addConstraint(Sketcher.Constraint("Tangent", 10, 2, 11, 2))
sketch6.addConstraint(Sketcher.Constraint("Tangent", 11, 1, 12, 1))
sketch6.addConstraint(Sketcher.Constraint("Tangent", 12, 2, 13, 2))
sketch6.addConstraint(Sketcher.Constraint("Tangent", 13, 1, 14, 1))
sketch6.addConstraint(Sketcher.Constraint("Tangent", 14, 2, 15, 2))
sketch6.addConstraint(Sketcher.Constraint("Tangent", 15, 1, 16, 1))
sketch6.addConstraint(Sketcher.Constraint("Tangent", 16, 2, 9, 2))
sketch6.addConstraint(Sketcher.Constraint("Tangent", 17, 2, 18, 2))
sketch6.addConstraint(Sketcher.Constraint("Tangent", 18, 1, 19, 1))
sketch6.addConstraint(Sketcher.Constraint("Tangent", 19, 2, 20, 2))
sketch6.addConstraint(Sketcher.Constraint("Tangent", 20, 1, 21, 1))
sketch6.addConstraint(Sketcher.Constraint("Tangent", 21, 2, 22, 2))
sketch6.addConstraint(Sketcher.Constraint("Tangent", 22, 1, 23, 1))
sketch6.addConstraint(Sketcher.Constraint("Tangent", 23, 2, 24, 2))
sketch6.addConstraint(Sketcher.Constraint("Tangent", 24, 1, 25, 1))
sketch6.addConstraint(Sketcher.Constraint("Tangent", 25, 2, 26, 2))
sketch6.addConstraint(Sketcher.Constraint("Tangent", 26, 1, 17, 1))
sketch6.addConstraint(Sketcher.Constraint("Tangent", 27, 2, 28, 2))
sketch6.addConstraint(Sketcher.Constraint("Tangent", 28, 1, 29, 1))
sketch6.addConstraint(Sketcher.Constraint("Tangent", 29, 2, 30, 2))
sketch6.addConstraint(Sketcher.Constraint("Tangent", 30, 1, 31, 1))
sketch6.addConstraint(Sketcher.Constraint("Tangent", 31, 2, 32, 2))
sketch6.addConstraint(Sketcher.Constraint("Tangent", 32, 1, 33, 1))
sketch6.addConstraint(Sketcher.Constraint("Tangent", 33, 2, 34, 2))
sketch6.addConstraint(Sketcher.Constraint("Tangent", 34, 1, 27, 1))
sketch6.addConstraint(Sketcher.Constraint("Tangent", 35, 1, 36, 1))
sketch6.addConstraint(Sketcher.Constraint("Tangent", 36, 2, 37, 2))
sketch6.addConstraint(Sketcher.Constraint("Tangent", 37, 1, 38, 1))
sketch6.addConstraint(Sketcher.Constraint("Tangent", 38, 2, 39, 2))
sketch6.addConstraint(Sketcher.Constraint("Tangent", 39, 1, 40, 1))
sketch6.addConstraint(Sketcher.Constraint("Tangent", 40, 2, 41, 2))
sketch6.addConstraint(Sketcher.Constraint("Tangent", 41, 1, 42, 1))
sketch6.addConstraint(Sketcher.Constraint("Tangent", 42, 2, 43, 2))
sketch6.addConstraint(Sketcher.Constraint("Tangent", 43, 1, 44, 1))
sketch6.addConstraint(Sketcher.Constraint("Tangent", 44, 2, 35, 2))
sketch6.addConstraint(Sketcher.Constraint("Tangent", 45, 2, 46, 2))
sketch6.addConstraint(Sketcher.Constraint("Tangent", 46, 1, 47, 1))
sketch6.addConstraint(Sketcher.Constraint("Tangent", 47, 2, 48, 2))
sketch6.addConstraint(Sketcher.Constraint("Tangent", 48, 1, 49, 1))
sketch6.addConstraint(Sketcher.Constraint("Tangent", 49, 2, 50, 2))
sketch6.addConstraint(Sketcher.Constraint("Tangent", 50, 1, 45, 1))
sketch6.addConstraint(Sketcher.Constraint("Tangent", 51, 2, 52, 2))
sketch6.addConstraint(Sketcher.Constraint("Tangent", 52, 1, 53, 1))
sketch6.addConstraint(Sketcher.Constraint("Tangent", 53, 2, 54, 2))
sketch6.addConstraint(Sketcher.Constraint("Tangent", 54, 1, 55, 1))
sketch6.addConstraint(Sketcher.Constraint("Tangent", 55, 2, 56, 2))
sketch6.addConstraint(Sketcher.Constraint("Tangent", 56, 1, 51, 1))
sketch6.addConstraint(Sketcher.Constraint("Vertical", 3))
sketch6.addConstraint(Sketcher.Constraint("Horizontal", 4))
sketch6.addConstraint(Sketcher.Constraint("Vertical", 5))
sketch6.addConstraint(Sketcher.Constraint("Horizontal", 6))
sketch6.addConstraint(Sketcher.Constraint("Vertical", 7))
sketch6.addConstraint(Sketcher.Constraint("Horizontal", 8))
sketch6.addConstraint(Sketcher.Constraint("Horizontal", 19))
sketch6.addConstraint(Sketcher.Constraint("Vertical", 21))
sketch6.addConstraint(Sketcher.Constraint("Horizontal", 42))
sketch6.addConstraint(Sketcher.Constraint("Vertical", 44))
sketch6.addConstraint(Sketcher.Constraint("Vertical", 49))
sketch6.addConstraint(Sketcher.Constraint("Horizontal", 53))
sketch6.addConstraint(Sketcher.Constraint("Coincident", 10, 3, 0, 3))
sketch6.addConstraint(Sketcher.Constraint("Coincident", 17, 3, 0, 3))
sketch6.addConstraint(Sketcher.Constraint("Coincident", 27, 3, 2, 3))
sketch6.addConstraint(Sketcher.Constraint("Coincident", 36, 3, 2, 3))
sketch6.addConstraint(Sketcher.Constraint("Coincident", 38, 3, 25, 3))
sketch6.addConstraint(Sketcher.Constraint("Equal", 0, 2))
sketch6.addConstraint(Sketcher.Constraint("Equal", 2, 10))
sketch6.addConstraint(Sketcher.Constraint("Equal", 9, 11))
sketch6.addConstraint(Sketcher.Constraint("Equal", 11, 13))
sketch6.addConstraint(Sketcher.Constraint("Equal", 13, 15))
sketch6.addConstraint(Sketcher.Constraint("Equal", 10, 17))
sketch6.addConstraint(Sketcher.Constraint("Equal", 15, 18))
sketch6.addConstraint(Sketcher.Constraint("Equal", 18, 20))
sketch6.addConstraint(Sketcher.Constraint("Equal", 20, 22))
sketch6.addConstraint(Sketcher.Constraint("Equal", 22, 24))
sketch6.addConstraint(Sketcher.Constraint("Equal", 24, 26))
sketch6.addConstraint(Sketcher.Constraint("Equal", 17, 27))
sketch6.addConstraint(Sketcher.Constraint("Equal", 26, 28))
sketch6.addConstraint(Sketcher.Constraint("Equal", 28, 30))
sketch6.addConstraint(Sketcher.Constraint("Equal", 30, 32))
sketch6.addConstraint(Sketcher.Constraint("Equal", 32, 34))
sketch6.addConstraint(Sketcher.Constraint("Equal", 34, 35))
sketch6.addConstraint(Sketcher.Constraint("Equal", 27, 36))
sketch6.addConstraint(Sketcher.Constraint("Equal", 35, 37))
sketch6.addConstraint(Sketcher.Constraint("Equal", 25, 38))
sketch6.addConstraint(Sketcher.Constraint("Equal", 37, 39))
sketch6.addConstraint(Sketcher.Constraint("Equal", 39, 41))
sketch6.addConstraint(Sketcher.Constraint("Equal", 41, 43))
sketch6.addConstraint(Sketcher.Constraint("Equal", 43, 46))
sketch6.addConstraint(Sketcher.Constraint("Equal", 46, 48))
sketch6.addConstraint(Sketcher.Constraint("Equal", 48, 50))
sketch6.addConstraint(Sketcher.Constraint("Equal", 50, 52))
sketch6.addConstraint(Sketcher.Constraint("Equal", 52, 54))
sketch6.addConstraint(Sketcher.Constraint("Equal", 54, 56))
sketch6.addConstraint(Sketcher.Constraint("PointOnObject", 3, 2, -1))
sketch6.addConstraint(Sketcher.Constraint("PointOnObject", 6, 2, -2))
sketch6.addConstraint(Sketcher.Constraint("Perpendicular", 1, 14))
sketch6.addConstraint(Sketcher.Constraint("Perpendicular", 14, 16))
sketch6.addConstraint(Sketcher.Constraint("Parallel", 16, 23))
sketch6.addConstraint(Sketcher.Constraint("Parallel", 23, 29))
sketch6.addConstraint(Sketcher.Constraint("Perpendicular", 29, 31))
sketch6.addConstraint(Sketcher.Constraint("Perpendicular", 31, 40))
sketch6.addConstraint(Sketcher.Constraint("Parallel", 40, 47))
sketch6.addConstraint(Sketcher.Constraint("Parallel", 47, 55))
sketch6.addConstraint(Sketcher.Constraint("Horizontal", 13, 3, 24, 3))
sketch6.addConstraint(Sketcher.Constraint("Horizontal", 32, 3, 46, 3))
sketch6.addConstraint(Sketcher.Constraint("Horizontal", 43, 3, 52, 3))
sketch6.addConstraint(Sketcher.Constraint("Horizontal", 13, 1, 23, 2))
sketch6.addConstraint(Sketcher.Constraint("Vertical", 32, 3, 39, 3))
sketch6.addConstraint(Sketcher.Constraint("Vertical", 22, 3, 48, 3))
sketch6.addConstraint(Sketcher.Constraint("Vertical", 13, 3, 56, 3))
sketch6.addConstraint(Sketcher.Constraint("Equal", 8, 3))
sketch6.addConstraint(Sketcher.Constraint("Equal", 6, 5))
sketch6.addConstraint(Sketcher.Constraint("Equal", 42, 21))
sketch6.addConstraint(Sketcher.Constraint("Equal", 19, 44))
sketch6.addConstraint(Sketcher.Constraint("Equal", 53, 49))
sketch6.addConstraint(Sketcher.Constraint("Equal", 16, 29))
sketch6.addConstraint(Sketcher.Constraint("Equal", 14, 31))
sketch6.addConstraint(Sketcher.Constraint("Equal", 23, 40))
sketch6.addConstraint(Sketcher.Constraint("Equal", 47, 55))
sketch6.addConstraint(Sketcher.Constraint("Radius", 0, Q("0.6875 in")))
sketch6.addConstraint(Sketcher.Constraint("Radius", 9, Q("0.125 in")))
sketch6.addConstraint(Sketcher.Constraint("DistanceX", 6, 2, 6, 1, Q("7.5 in")))
sketch6.addConstraint(Sketcher.Constraint("DistanceX", -1, 1, 20, 1, Q("1 in")))
sketch6.addConstraint(Sketcher.Constraint("DistanceY", 41, 1, -1, 1, Q("1 in")))
sketch6.addConstraint(Sketcher.Constraint("Radius", 25, Q("2.125 in")))
sketch6.addConstraint(Sketcher.Constraint("Radius", 12, Q("2.1249 in")))
sketch6.addConstraint(Sketcher.Constraint("Radius", 33, Q("2.1251 in")))
sketch6.addConstraint(Sketcher.Constraint("Radius", 45, 53.9733))
sketch6.addConstraint(Sketcher.Constraint("Radius", 51, 53.9767))
sketch6.addConstraint(Sketcher.Constraint("DistanceX", 53, 1, 53, 2, Q("0.4389 in")))
sketch6.addConstraint(Sketcher.Constraint("DistanceX", -1, 1, 25, 3, Q("3.125 in")))
sketch6.addConstraint(Sketcher.Constraint("DistanceY", 26, 1, -1, 1, Q("5.477 in")))
sketch6.addConstraint(Sketcher.Constraint("Distance", 16, Q("0.7758 in")))
sketch6.addConstraint(Sketcher.Constraint("Distance", 23, Q("0.9849 in")))
sketch6.addConstraint(Sketcher.Constraint("Distance", 47, Q("0.2349 in")))
sketch6.addConstraint(Sketcher.Constraint("DistanceX", 4, 1, 4, 2, 18.8937))
sketch6.addConstraint(Sketcher.Constraint("DistanceX", 19, 2, 19, 1, 38.2405))
sketch6.addConstraint(Sketcher.Constraint("DistanceY", 9, 3, -1, 1, Q("5.7593 in")))
sketch6.addConstraint(Sketcher.Constraint("DistanceX", -1, 1, 33, 3, Q("3.1249 in")))
sketch6.addConstraint(Sketcher.Constraint("DistanceX", -1, 1, 10, 2, Q("3.6235 in")))
sketch6.setExpression("Constraints[129]", "Params.sketch6_radius")
sketch6.setExpression("Constraints[130]", "Params.sketch6_radius2")
sketch6.setExpression("Constraints[131]", "Params.sketch6_width")
sketch6.setExpression("Constraints[134]", "Params.sketch6_radius3")
pocket3 = body.newObject("PartDesign::Pocket", "Pocket002")
pocket3.Profile = sketch6
pocket3.Type = "ThroughAll"
pocket3.Reversed = True
doc.recompute()

fillet = body.newObject("PartDesign::Fillet", "Fillet")
fillet.Base = (pocket3, edges_at(pocket3, [
    (25.4, 3.175, -25.4),
    (69.85, 3.175, 0),
    (171.606, 3.175, 0),
    (0, 3.175, -69.85),
    (0, 3.175, -171.606),
]))
fillet.setExpression("Radius", "Params.fillet_radius")

doc.recompute()
